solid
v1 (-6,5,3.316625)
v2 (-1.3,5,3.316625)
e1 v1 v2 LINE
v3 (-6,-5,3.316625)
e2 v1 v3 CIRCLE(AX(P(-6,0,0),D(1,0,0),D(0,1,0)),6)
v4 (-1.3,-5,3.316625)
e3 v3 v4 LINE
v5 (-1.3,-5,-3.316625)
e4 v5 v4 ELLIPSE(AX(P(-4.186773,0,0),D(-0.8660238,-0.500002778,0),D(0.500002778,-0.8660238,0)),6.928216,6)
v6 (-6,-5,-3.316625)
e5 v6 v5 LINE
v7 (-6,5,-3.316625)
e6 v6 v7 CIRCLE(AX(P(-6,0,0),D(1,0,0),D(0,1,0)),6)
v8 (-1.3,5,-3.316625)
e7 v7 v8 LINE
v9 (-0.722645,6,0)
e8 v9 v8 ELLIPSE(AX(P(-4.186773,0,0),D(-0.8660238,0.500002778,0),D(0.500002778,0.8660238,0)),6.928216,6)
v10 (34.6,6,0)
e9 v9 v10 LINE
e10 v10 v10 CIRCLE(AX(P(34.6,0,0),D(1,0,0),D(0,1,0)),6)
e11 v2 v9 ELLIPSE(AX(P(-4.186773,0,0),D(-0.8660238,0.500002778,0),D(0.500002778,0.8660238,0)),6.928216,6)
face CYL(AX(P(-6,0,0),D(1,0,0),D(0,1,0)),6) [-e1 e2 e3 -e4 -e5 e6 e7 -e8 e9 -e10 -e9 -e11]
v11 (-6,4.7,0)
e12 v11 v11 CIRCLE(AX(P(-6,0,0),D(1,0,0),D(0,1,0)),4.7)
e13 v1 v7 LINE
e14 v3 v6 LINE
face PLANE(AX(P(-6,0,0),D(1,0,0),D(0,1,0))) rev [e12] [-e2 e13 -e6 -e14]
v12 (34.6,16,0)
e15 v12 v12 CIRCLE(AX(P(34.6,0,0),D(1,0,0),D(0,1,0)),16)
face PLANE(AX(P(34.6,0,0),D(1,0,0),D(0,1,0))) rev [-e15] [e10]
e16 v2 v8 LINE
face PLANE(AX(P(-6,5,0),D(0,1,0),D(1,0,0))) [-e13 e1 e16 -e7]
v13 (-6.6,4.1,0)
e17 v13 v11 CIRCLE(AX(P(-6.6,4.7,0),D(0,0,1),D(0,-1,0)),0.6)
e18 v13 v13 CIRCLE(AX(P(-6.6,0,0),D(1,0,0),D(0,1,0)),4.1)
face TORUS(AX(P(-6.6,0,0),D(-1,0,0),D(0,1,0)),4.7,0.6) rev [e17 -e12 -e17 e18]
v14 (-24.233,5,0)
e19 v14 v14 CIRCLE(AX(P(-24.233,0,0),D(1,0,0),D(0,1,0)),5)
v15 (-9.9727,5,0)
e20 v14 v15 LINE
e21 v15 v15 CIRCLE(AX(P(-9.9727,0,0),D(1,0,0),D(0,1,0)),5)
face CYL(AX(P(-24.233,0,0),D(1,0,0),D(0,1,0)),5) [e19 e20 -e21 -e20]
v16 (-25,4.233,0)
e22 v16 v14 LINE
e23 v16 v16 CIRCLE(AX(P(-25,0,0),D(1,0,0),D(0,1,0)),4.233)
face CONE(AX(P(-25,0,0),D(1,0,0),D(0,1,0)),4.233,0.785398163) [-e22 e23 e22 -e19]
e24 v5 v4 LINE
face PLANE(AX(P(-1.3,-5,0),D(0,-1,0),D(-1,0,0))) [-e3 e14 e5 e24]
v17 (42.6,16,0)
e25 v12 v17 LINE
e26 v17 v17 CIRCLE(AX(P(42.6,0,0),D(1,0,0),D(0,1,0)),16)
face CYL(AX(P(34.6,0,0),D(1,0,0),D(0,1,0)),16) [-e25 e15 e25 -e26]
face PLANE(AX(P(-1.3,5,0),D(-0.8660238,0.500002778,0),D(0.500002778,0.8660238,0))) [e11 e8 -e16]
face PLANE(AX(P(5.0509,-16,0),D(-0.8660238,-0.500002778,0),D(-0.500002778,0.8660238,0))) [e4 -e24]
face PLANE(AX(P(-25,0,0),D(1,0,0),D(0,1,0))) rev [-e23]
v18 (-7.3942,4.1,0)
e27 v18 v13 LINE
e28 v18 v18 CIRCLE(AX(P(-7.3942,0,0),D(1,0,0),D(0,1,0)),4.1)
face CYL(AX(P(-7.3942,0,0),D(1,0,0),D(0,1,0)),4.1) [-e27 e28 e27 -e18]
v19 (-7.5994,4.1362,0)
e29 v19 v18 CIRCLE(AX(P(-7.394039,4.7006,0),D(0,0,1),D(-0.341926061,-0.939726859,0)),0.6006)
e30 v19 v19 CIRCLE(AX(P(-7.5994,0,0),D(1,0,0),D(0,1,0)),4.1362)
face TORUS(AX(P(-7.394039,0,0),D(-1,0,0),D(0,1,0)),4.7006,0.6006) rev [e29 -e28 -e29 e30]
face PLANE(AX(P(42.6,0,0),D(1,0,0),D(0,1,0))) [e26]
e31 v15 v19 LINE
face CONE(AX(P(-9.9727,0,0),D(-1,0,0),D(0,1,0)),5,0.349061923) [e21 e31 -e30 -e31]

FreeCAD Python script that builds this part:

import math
import FreeCAD as App
import Part
import Sketcher

V = App.Vector
Q = App.Units.Quantity


def add_polygon(sketch, points):
    """Adds a closed chain of lines whose ends are joined by coincident constraints."""
    first, n = sketch.GeometryCount, len(points)
    for a, b in zip(points, points[1:] + points[:1]):
        sketch.addGeometry(Part.LineSegment(App.Vector(*a, 0), App.Vector(*b, 0)), False)
    for i in range(n):
        sketch.addConstraint(Sketcher.Constraint("Coincident", first + i, 2, first + (i + 1) % n, 1))

doc = App.newDocument("Part")
body = doc.addObject("PartDesign::Body", "Body")

# Sketch on XY plane
sketch1 = body.newObject("Sketcher::SketchObject", "Sketch")
sketch1.AttachmentSupport = (doc.getObject("XY_Plane"), [""])
sketch1.MapMode = "FlatFace"
add_polygon(sketch1, [(-6, 0), (43, 0), (43, 6), (-6, 6)])  # lines 0-3
sketch1.addConstraint([
    Sketcher.Constraint("Horizontal", 0),
    Sketcher.Constraint("Vertical", 1),
    Sketcher.Constraint("Horizontal", 2),
    Sketcher.Constraint("Vertical", 3),
    Sketcher.Constraint("PointOnObject", 0, 2, -1),
    Sketcher.Constraint("DistanceY", 1, 1, 1, 2, 6.0),
    Sketcher.Constraint("DistanceX", 0, 1, 0, 2, 48.6),
    Sketcher.Constraint("DistanceX", 2, 2, -1, 1, 6.0),
])
revolution = body.newObject("PartDesign::Revolution", "Revolution")
revolution.Profile = sketch1
revolution.ReferenceAxis = (sketch1, ["H_Axis"])
revolution.Angle = 360

# Sketch on XY plane
sketch2 = body.newObject("Sketcher::SketchObject", "Sketch001")
sketch2.AttachmentSupport = (doc.getObject("XY_Plane"), [""])
sketch2.MapMode = "FlatFace"
add_polygon(sketch2, [(35, 0), (43, 0), (43, 16), (35, 16)])  # lines 0-3
sketch2.addConstraint([
    Sketcher.Constraint("Horizontal", 0),
    Sketcher.Constraint("Vertical", 1),
    Sketcher.Constraint("Horizontal", 2),
    Sketcher.Constraint("Vertical", 3),
    Sketcher.Constraint("PointOnObject", 0, 2, -1),
    Sketcher.Constraint("DistanceX", 0, 1, 0, 2, 8.0),
    Sketcher.Constraint("DistanceY", 1, 1, 1, 2, 16.0),
    Sketcher.Constraint("DistanceX", -1, 1, 0, 2, 42.6),
])
revolution2 = body.newObject("PartDesign::Revolution", "Revolution001")
revolution2.Profile = sketch2
revolution2.ReferenceAxis = (sketch2, ["H_Axis"])
revolution2.Angle = 360

# Sketch on XY plane
sketch3 = body.newObject("Sketcher::SketchObject", "Sketch002")
sketch3.AttachmentSupport = (doc.getObject("XY_Plane"), [""])
sketch3.MapMode = "FlatFace"
sketch3.addGeometry([
    Part.LineSegment(V(-25, 0, 0), V(-5, 0, 0)),  # 0
    Part.LineSegment(V(-5, 0, 0), V(-5, 5, 0)),  # 1
    Part.LineSegment(V(-5, 5, 0), V(-6, 5, 0)),  # 2
    Part.LineSegment(V(-6, 5, 0), V(-6, 4.7, 0)),  # 3
    Part.ArcOfCircle(Part.Circle(V(-6.6, 4.7, 0), V(0, 0, 1), 0.6), math.radians(-90), math.radians(0)),  # 4
    Part.LineSegment(V(-6.6, 4.1, 0), V(-7.39, 4.1, 0)),  # 5
    Part.ArcOfCircle(Part.Circle(V(-7.39, 4.7, 0), V(0, 0, 1), 0.6), math.radians(-110), math.radians(-90)),  # 6
    Part.LineSegment(V(-7.6, 4.14, 0), V(-9.97, 5, 0)),  # 7
    Part.LineSegment(V(-9.97, 5, 0), V(-24.23, 5, 0)),  # 8
    Part.LineSegment(V(-24.23, 5, 0), V(-25, 4.23, 0)),  # 9
    Part.LineSegment(V(-25, 4.23, 0), V(-25, 0, 0)),  # 10
], False)
sketch3.addConstraint([
    Sketcher.Constraint("Coincident", 0, 2, 1, 1),
    Sketcher.Constraint("Coincident", 1, 2, 2, 1),
    Sketcher.Constraint("Coincident", 2, 2, 3, 1),
    Sketcher.Constraint("Tangent", 3, 2, 4, 2),
    Sketcher.Constraint("Tangent", 4, 1, 5, 1),
    Sketcher.Constraint("Tangent", 5, 2, 6, 2),
    Sketcher.Constraint("Tangent", 6, 1, 7, 1),
    Sketcher.Constraint("Coincident", 7, 2, 8, 1),
    Sketcher.Constraint("Coincident", 8, 2, 9, 1),
    Sketcher.Constraint("Coincident", 9, 2, 10, 1),
    Sketcher.Constraint("Coincident", 10, 2, 0, 1),
    Sketcher.Constraint("Horizontal", 0),
    Sketcher.Constraint("Vertical", 1),
    Sketcher.Constraint("Horizontal", 2),
    Sketcher.Constraint("Vertical", 3),
    Sketcher.Constraint("Horizontal", 5),
    Sketcher.Constraint("Horizontal", 8),
    Sketcher.Constraint("Vertical", 10),
    Sketcher.Constraint("Equal", 4, 6),
    Sketcher.Constraint("PointOnObject", 0, 2, -1),
    Sketcher.Constraint("Horizontal", 2, 2, 7, 2),
    Sketcher.Constraint("Radius", 4, 0.6),
    Sketcher.Constraint("DistanceX", 0, 1, 0, 2, 20.0),
    Sketcher.Constraint("DistanceX", 2, 2, 2, 1, 1.0),
    Sketcher.Constraint("DistanceY", 1, 1, 1, 2, 5.0),
    Sketcher.Constraint("Angle", 7, Q("160.0002 deg")),
    Sketcher.Constraint("Angle", 9, Q("-135 deg")),
    Sketcher.Constraint("DistanceY", 3, 2, 3, 1, 0.3),
    Sketcher.Constraint("DistanceX", 0, 2, -1, 1, 5.0),
    Sketcher.Constraint("DistanceY", 10, 2, 10, 1, 4.233),
    Sketcher.Constraint("DistanceX", 5, 2, 5, 1, 0.7942),
])
revolution3 = body.newObject("PartDesign::Revolution", "Revolution002")
revolution3.Profile = sketch3
revolution3.ReferenceAxis = (sketch3, ["H_Axis"])
revolution3.Angle = 360

# Sketch on XY plane
sketch4 = body.newObject("Sketcher::SketchObject", "Sketch003")
sketch4.AttachmentSupport = (doc.getObject("XY_Plane"), [""])
sketch4.MapMode = "FlatFace"
add_polygon(sketch4, [(-36, 16), (-36, -16), (5.1, -16), (-1.3, -5), (-6, -5), (-6, -10), (-30, -10), (-30, 10), (-6, 10), (-6, 5), (-1.3, 5), (5.1, 16)])  # lines 0-11
sketch4.addConstraint([
    Sketcher.Constraint("Vertical", 0),
    Sketcher.Constraint("Horizontal", 1),
    Sketcher.Constraint("Horizontal", 3),
    Sketcher.Constraint("Vertical", 4),
    Sketcher.Constraint("Horizontal", 5),
    Sketcher.Constraint("Vertical", 6),
    Sketcher.Constraint("Horizontal", 7),
    Sketcher.Constraint("Vertical", 8),
    Sketcher.Constraint("Horizontal", 9),
    Sketcher.Constraint("Horizontal", 11),
    Sketcher.Constraint("Symmetric", 4, 2, 7, 2, -1),
    Sketcher.Constraint("Symmetric", 2, 2, 9, 2, -1),
    Sketcher.Constraint("Symmetric", 1, 2, 10, 2, -1),
    Sketcher.Constraint("DistanceX", 5, 2, 5, 1, 24.0),
    Sketcher.Constraint("DistanceY", 0, 2, 0, 1, 32.0),
    Sketcher.Constraint("DistanceY", 4, 2, 4, 1, 5.0),
    Sketcher.Constraint("DistanceY", 6, 1, 6, 2, 20.0),
    Sketcher.Constraint("Angle", 2, Q("120.0002 deg")),
    Sketcher.Constraint("DistanceX", 3, 2, 3, 1, 4.7),
    Sketcher.Constraint("DistanceX", 0, 2, -1, 1, 36.0),
    Sketcher.Constraint("DistanceX", 3, 2, -1, 1, 6.0),
])
pocket1 = body.newObject("PartDesign::Pocket", "Pocket")
pocket1.Profile = sketch4
pocket1.Length = 24
pocket1.Midplane = True

doc.recompute()
